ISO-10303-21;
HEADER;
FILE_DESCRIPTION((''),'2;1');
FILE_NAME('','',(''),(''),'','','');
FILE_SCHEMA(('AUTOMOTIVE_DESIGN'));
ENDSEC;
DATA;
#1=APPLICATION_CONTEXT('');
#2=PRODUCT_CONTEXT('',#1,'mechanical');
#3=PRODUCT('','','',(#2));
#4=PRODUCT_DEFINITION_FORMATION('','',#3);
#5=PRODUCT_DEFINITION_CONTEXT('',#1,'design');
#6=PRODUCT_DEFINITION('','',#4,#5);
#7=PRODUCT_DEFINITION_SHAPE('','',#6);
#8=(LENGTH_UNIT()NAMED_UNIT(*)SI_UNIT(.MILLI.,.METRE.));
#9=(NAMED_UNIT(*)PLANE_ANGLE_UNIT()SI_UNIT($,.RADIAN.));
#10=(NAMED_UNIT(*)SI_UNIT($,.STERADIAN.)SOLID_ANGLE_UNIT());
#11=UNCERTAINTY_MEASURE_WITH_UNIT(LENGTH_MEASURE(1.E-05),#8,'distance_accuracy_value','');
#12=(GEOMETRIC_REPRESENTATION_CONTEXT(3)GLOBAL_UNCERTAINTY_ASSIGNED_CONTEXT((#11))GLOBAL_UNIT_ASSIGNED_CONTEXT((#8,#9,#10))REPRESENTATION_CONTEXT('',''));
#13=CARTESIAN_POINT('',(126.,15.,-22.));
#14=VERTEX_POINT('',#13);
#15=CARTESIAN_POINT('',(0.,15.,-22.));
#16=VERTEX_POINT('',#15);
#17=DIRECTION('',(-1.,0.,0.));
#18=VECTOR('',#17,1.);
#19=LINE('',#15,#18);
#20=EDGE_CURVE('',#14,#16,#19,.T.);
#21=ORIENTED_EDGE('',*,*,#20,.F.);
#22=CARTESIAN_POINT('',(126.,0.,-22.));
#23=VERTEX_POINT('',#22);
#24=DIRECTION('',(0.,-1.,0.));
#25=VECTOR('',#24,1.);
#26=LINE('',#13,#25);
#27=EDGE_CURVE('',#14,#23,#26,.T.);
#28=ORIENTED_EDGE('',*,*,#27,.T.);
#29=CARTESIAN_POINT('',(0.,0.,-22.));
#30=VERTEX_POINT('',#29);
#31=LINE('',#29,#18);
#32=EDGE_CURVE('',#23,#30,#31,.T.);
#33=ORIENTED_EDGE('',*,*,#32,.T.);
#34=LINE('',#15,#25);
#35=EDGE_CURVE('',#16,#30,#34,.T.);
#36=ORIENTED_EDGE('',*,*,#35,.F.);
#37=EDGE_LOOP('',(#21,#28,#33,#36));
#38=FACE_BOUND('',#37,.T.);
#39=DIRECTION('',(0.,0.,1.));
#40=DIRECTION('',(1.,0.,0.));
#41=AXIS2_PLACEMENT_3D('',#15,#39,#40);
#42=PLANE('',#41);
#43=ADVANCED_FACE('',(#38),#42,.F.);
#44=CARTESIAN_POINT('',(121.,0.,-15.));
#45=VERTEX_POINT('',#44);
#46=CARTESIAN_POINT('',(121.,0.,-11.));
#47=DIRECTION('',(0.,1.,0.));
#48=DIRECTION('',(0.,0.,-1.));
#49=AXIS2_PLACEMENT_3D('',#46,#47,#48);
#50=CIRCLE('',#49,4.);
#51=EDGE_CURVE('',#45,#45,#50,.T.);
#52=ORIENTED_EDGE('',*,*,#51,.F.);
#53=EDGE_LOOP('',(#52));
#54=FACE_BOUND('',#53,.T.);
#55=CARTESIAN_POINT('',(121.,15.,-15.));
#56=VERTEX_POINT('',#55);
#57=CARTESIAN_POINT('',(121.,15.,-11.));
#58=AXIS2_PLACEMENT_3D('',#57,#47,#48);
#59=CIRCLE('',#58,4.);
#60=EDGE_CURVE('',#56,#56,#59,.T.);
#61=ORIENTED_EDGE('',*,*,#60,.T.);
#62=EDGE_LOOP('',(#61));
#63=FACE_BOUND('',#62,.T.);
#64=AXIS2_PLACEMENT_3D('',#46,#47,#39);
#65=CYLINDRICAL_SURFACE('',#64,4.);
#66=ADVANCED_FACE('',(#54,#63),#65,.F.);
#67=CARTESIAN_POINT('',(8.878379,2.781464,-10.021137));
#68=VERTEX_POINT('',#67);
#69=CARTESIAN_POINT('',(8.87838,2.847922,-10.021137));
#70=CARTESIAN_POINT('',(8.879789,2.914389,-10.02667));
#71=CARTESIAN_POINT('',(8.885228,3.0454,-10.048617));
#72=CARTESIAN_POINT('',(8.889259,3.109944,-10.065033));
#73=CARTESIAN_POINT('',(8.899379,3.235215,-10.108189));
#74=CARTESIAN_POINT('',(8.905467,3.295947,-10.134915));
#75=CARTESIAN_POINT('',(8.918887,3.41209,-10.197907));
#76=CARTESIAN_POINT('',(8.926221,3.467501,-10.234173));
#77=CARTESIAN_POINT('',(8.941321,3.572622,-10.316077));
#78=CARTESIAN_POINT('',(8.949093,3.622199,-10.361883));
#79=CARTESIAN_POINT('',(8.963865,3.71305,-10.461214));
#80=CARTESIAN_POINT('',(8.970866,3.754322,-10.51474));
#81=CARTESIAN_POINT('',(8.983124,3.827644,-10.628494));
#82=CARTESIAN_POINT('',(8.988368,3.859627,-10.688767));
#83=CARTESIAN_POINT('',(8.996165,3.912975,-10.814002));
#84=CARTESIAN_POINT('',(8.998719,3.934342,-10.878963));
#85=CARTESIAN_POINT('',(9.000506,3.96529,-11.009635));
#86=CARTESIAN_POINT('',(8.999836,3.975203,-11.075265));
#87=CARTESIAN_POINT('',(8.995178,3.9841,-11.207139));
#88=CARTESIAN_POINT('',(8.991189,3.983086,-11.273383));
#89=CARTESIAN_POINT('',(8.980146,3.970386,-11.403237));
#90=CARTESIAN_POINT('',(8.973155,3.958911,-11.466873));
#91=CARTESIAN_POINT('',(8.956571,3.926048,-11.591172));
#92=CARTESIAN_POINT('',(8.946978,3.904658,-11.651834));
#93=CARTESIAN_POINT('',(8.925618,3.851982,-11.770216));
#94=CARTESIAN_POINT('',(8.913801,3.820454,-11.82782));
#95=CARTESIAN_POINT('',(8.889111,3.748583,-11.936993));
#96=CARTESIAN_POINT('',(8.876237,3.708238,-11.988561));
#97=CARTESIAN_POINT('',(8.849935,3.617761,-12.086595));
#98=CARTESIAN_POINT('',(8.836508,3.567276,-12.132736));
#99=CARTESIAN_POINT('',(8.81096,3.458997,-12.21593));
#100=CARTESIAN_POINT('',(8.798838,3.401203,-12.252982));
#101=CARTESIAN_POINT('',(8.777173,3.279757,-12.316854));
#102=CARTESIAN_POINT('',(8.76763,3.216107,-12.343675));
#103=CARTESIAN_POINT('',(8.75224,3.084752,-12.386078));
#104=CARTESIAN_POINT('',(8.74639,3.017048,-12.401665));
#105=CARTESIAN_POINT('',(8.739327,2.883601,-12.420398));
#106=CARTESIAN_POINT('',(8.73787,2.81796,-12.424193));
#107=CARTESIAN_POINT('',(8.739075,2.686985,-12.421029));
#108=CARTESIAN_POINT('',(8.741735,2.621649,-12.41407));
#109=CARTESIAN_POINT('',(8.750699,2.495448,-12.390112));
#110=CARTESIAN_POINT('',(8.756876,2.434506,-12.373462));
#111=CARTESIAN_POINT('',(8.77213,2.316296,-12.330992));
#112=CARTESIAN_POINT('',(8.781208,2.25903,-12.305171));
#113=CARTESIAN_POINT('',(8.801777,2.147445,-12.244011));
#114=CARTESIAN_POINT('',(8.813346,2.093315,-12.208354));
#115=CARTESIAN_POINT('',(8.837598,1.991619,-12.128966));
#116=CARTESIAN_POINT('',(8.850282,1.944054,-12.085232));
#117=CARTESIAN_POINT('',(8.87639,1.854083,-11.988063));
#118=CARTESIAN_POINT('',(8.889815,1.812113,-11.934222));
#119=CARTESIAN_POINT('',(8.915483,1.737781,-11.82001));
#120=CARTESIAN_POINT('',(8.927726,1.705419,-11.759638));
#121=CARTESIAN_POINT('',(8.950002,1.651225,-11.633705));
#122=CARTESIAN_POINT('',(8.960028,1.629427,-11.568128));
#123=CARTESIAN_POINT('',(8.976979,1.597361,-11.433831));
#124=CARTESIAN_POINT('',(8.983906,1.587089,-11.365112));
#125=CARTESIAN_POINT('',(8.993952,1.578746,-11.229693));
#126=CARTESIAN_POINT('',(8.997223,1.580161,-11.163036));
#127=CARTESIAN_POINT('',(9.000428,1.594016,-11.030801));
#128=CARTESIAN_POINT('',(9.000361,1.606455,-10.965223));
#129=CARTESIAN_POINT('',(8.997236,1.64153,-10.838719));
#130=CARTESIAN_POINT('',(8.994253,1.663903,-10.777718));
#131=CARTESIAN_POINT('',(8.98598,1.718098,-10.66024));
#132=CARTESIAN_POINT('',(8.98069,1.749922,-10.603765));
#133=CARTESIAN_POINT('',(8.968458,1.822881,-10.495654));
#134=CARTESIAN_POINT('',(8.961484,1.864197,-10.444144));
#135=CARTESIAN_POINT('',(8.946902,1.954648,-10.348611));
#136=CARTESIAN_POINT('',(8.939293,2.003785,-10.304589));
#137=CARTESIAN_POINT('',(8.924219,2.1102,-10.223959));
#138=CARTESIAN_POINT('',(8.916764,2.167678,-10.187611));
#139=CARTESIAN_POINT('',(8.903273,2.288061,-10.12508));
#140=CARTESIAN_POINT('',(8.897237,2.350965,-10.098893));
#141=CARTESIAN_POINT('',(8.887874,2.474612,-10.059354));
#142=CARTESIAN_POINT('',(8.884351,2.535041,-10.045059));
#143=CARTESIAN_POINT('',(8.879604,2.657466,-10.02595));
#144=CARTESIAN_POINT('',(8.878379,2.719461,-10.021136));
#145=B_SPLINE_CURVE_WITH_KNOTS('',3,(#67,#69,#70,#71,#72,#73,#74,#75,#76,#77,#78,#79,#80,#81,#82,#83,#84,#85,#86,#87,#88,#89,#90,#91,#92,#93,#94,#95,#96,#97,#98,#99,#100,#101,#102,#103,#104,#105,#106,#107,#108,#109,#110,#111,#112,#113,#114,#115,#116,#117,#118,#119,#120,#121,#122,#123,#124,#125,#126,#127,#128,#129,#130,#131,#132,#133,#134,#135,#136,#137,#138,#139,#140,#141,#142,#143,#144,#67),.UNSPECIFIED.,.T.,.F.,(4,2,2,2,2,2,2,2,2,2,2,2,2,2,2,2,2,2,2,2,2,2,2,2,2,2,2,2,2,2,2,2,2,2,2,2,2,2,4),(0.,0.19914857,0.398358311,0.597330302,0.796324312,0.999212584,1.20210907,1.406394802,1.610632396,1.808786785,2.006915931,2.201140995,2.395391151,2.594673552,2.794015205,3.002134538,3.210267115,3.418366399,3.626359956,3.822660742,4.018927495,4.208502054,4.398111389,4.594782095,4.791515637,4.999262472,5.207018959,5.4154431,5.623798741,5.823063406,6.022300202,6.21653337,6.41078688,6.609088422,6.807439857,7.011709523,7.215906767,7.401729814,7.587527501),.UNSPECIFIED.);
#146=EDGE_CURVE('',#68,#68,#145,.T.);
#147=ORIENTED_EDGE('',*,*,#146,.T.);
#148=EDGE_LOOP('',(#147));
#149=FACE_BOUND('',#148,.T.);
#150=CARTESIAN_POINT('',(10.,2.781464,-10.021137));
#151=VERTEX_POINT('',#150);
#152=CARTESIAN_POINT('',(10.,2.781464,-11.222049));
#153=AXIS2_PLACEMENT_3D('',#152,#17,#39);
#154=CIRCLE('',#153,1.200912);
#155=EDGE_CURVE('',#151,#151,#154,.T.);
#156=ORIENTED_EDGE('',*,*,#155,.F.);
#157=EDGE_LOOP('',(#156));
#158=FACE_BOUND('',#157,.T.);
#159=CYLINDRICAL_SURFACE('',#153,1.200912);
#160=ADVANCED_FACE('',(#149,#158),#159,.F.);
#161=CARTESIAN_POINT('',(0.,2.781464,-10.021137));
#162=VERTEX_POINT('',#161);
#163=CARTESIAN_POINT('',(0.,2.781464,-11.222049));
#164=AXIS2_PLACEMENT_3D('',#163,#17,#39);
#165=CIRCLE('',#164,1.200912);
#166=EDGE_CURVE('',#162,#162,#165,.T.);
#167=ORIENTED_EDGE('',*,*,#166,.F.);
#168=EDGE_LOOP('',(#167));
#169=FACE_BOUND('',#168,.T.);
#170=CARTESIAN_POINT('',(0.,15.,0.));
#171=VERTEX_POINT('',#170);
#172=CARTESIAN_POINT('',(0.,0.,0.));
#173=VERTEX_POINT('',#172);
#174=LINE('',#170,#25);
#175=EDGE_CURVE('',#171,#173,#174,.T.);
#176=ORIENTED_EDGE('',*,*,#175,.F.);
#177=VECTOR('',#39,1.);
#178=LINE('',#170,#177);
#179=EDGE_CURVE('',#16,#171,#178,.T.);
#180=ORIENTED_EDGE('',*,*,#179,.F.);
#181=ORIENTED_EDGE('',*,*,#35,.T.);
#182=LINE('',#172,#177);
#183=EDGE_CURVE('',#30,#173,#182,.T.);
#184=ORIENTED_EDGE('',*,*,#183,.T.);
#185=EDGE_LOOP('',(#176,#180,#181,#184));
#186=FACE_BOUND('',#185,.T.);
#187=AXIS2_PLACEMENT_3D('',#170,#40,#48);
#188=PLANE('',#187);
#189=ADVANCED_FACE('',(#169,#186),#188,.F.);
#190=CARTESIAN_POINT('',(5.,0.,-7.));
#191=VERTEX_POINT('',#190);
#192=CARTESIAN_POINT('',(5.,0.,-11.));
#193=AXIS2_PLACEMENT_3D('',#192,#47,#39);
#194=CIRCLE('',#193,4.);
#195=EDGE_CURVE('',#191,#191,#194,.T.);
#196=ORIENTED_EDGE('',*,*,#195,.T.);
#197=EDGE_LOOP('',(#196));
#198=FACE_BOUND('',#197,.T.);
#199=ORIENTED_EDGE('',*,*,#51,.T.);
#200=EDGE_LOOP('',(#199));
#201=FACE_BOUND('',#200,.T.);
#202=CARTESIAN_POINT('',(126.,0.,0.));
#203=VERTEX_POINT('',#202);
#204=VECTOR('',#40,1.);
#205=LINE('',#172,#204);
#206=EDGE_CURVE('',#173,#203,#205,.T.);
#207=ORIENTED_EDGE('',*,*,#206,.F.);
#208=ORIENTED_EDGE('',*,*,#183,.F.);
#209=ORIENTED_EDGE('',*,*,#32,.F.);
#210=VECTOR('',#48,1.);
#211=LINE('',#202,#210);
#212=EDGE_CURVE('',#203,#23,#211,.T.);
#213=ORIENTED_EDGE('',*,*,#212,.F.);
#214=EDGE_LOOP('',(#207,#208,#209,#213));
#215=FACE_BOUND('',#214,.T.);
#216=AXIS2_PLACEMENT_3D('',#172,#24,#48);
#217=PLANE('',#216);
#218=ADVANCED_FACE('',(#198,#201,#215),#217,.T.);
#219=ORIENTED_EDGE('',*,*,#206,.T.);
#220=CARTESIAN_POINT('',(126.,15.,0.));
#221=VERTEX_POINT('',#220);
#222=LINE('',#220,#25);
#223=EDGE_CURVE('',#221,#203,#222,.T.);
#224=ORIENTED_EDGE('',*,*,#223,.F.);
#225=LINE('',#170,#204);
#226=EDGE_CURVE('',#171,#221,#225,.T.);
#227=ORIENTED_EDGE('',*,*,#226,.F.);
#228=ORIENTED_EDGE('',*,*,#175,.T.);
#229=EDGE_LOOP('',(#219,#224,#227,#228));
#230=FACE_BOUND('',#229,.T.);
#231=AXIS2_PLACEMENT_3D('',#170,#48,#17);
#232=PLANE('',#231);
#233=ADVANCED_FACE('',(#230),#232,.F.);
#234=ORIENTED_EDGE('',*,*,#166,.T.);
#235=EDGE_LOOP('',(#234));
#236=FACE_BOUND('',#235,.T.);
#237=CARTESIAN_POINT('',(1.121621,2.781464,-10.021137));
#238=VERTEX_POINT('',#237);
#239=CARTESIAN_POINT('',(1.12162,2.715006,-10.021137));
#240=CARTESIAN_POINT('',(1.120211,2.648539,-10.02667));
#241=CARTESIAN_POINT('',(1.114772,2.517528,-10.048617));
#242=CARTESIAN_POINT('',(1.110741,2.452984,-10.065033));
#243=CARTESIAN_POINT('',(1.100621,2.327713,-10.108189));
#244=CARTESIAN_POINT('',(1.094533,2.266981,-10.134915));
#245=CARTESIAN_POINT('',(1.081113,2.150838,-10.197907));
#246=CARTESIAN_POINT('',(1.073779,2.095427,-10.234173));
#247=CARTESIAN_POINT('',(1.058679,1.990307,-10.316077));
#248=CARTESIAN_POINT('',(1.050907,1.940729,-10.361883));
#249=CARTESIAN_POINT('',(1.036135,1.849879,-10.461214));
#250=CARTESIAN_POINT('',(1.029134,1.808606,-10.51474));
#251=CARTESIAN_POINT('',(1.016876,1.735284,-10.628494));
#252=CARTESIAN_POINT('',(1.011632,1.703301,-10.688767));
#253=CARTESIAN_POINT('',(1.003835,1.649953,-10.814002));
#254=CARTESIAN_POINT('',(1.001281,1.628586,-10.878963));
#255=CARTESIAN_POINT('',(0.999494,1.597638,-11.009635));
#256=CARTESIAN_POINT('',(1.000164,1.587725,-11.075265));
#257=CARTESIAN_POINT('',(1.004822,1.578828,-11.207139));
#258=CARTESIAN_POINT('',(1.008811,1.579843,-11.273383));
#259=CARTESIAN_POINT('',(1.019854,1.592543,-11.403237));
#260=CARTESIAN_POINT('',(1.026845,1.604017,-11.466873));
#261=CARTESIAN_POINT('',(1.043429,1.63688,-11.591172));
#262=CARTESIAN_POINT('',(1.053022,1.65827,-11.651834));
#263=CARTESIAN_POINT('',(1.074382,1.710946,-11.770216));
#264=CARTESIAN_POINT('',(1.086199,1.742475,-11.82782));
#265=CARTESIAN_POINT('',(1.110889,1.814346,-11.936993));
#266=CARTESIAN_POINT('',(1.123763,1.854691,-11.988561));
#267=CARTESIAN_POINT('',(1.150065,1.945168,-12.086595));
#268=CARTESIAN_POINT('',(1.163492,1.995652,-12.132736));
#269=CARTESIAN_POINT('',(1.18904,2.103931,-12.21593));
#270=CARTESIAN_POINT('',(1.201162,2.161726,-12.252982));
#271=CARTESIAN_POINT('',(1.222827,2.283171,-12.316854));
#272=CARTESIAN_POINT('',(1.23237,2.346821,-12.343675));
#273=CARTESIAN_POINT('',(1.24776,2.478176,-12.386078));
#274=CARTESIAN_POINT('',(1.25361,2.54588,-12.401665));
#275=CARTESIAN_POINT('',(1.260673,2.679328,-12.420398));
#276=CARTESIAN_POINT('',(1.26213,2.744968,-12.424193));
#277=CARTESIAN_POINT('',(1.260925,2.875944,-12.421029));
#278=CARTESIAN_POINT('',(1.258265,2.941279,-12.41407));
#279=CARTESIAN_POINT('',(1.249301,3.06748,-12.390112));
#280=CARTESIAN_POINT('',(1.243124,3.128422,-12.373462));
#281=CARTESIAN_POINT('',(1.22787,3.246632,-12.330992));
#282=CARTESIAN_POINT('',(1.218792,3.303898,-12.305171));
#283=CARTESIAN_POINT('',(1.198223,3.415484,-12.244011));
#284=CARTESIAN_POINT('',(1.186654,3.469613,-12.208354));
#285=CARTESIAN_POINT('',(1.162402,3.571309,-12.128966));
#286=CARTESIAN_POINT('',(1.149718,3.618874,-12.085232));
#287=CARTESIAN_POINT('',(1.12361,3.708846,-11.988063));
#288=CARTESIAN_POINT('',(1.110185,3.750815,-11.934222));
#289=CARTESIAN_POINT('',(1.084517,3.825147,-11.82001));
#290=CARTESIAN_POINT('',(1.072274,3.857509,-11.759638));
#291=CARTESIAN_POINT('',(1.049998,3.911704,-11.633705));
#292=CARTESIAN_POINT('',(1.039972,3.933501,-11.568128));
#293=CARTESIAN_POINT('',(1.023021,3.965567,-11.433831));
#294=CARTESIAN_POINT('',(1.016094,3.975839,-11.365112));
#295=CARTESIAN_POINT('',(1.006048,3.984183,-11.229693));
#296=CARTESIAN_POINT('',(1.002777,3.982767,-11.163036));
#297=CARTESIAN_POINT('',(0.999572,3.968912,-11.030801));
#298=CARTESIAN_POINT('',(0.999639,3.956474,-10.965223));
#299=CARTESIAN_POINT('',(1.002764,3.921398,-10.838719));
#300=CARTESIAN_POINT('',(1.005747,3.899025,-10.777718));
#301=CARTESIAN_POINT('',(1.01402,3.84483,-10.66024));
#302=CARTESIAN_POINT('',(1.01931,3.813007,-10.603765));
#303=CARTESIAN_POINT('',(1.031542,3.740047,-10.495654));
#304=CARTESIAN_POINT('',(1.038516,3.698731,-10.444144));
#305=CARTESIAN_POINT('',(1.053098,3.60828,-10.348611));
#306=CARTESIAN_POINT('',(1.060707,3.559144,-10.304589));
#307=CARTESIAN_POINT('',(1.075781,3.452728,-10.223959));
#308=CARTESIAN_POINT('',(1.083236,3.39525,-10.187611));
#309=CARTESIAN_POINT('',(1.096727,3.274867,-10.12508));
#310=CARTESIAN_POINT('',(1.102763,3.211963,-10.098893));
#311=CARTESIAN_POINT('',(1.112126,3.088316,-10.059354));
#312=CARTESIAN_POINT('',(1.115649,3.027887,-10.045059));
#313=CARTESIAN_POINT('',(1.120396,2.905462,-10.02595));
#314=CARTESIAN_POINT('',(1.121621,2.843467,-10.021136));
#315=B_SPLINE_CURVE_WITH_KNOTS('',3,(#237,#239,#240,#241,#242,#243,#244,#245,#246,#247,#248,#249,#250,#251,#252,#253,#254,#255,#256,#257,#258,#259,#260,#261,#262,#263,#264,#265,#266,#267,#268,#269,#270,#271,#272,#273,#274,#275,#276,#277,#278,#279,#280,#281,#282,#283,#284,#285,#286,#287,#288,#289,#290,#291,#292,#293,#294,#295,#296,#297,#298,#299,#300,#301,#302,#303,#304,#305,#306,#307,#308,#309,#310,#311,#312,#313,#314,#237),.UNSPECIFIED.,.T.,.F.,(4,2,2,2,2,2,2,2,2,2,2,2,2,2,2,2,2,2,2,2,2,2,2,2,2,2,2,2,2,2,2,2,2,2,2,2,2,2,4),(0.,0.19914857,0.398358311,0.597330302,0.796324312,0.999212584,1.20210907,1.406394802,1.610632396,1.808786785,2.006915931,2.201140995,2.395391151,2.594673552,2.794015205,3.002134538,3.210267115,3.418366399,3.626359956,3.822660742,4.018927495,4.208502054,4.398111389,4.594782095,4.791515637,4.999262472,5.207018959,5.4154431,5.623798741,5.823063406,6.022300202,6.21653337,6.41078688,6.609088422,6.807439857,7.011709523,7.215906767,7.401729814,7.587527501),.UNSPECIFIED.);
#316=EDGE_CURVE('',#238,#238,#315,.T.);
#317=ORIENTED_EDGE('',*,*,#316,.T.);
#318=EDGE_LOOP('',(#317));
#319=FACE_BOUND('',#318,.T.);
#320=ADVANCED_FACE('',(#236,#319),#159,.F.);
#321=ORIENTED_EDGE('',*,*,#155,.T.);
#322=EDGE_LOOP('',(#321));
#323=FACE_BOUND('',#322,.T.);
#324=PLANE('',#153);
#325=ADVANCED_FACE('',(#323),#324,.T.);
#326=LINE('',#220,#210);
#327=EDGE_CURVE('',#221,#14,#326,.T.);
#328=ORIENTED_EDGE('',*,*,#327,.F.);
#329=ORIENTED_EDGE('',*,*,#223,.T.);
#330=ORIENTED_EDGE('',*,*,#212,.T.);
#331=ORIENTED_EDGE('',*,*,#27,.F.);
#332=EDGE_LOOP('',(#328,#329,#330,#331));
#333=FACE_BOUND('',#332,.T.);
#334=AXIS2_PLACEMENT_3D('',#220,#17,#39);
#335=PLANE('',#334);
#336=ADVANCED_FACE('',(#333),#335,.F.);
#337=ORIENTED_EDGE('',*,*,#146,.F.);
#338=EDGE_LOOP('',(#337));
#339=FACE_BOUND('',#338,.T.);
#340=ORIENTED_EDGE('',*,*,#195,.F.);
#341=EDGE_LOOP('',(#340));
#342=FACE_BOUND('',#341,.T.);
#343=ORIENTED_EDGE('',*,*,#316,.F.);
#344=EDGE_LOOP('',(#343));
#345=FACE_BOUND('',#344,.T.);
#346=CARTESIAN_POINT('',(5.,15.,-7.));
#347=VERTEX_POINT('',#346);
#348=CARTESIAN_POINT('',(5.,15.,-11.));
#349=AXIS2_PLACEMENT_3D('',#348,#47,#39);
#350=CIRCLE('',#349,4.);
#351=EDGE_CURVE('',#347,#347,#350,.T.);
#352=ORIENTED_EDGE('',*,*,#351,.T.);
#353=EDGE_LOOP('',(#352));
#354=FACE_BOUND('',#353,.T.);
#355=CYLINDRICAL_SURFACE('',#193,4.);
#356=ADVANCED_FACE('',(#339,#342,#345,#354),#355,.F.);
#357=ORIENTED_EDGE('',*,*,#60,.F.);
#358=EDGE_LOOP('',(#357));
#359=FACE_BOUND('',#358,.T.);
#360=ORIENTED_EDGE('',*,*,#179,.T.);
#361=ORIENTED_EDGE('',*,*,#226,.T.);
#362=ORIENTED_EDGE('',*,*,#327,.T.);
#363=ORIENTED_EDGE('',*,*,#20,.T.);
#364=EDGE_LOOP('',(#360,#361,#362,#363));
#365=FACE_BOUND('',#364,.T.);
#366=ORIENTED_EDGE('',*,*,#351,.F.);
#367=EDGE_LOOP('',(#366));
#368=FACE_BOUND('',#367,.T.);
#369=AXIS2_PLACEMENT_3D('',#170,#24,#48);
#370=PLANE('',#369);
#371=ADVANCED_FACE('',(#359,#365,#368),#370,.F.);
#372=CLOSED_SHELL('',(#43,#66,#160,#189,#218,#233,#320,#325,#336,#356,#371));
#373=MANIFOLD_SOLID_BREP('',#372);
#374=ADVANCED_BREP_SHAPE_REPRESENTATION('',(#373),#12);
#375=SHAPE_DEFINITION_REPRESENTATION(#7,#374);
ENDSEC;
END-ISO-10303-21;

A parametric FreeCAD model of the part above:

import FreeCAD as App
import Part
import Sketcher

V = App.Vector
Q = App.Units.Quantity

doc = App.newDocument("Part")
body = doc.addObject("PartDesign::Body", "Body")

# Sketch on XZ plane
sketch1 = body.newObject("Sketcher::SketchObject", "Sketch")
sketch1.AttachmentSupport = (doc.getObject("XZ_Plane"), [""])
sketch1.MapMode = "FlatFace"
sketch1.addGeometry([
    Part.LineSegment(V(0, -22, 0), V(0, 0, 0)),
    Part.LineSegment(V(0, 0, 0), V(126, 0, 0)),
    Part.LineSegment(V(126, 0, 0), V(126, -22, 0)),
    Part.LineSegment(V(126, -22, 0), V(0, -22, 0)),
], False)
sketch1.addConstraint([
    Sketcher.Constraint("Coincident", 0, 2, 1, 1),
    Sketcher.Constraint("Coincident", 1, 2, 2, 1),
    Sketcher.Constraint("Coincident", 2, 2, 3, 1),
    Sketcher.Constraint("Coincident", 3, 2, 0, 1),
    Sketcher.Constraint("Vertical", 0),
    Sketcher.Constraint("Horizontal", 1),
    Sketcher.Constraint("Vertical", 2),
    Sketcher.Constraint("Horizontal", 3),
    Sketcher.Constraint("Coincident", 0, 2, -1, 1),
    Sketcher.Constraint("DistanceX", 1, 1, 1, 2, Q("126 mm")),
    Sketcher.Constraint("DistanceY", 0, 1, 0, 2, Q("22 mm")),
])
pad1 = body.newObject("PartDesign::Pad", "Pad")
pad1.Profile = sketch1
pad1.Length = 15
pad1.Reversed = True

# Sketch on YZ plane
sketch2 = body.newObject("Sketcher::SketchObject", "Sketch001")
sketch2.AttachmentSupport = (doc.getObject("YZ_Plane"), [""])
sketch2.MapMode = "FlatFace"
sketch2.addGeometry(Part.Circle(V(2.8, -11.2, 0), V(0, 0, 1), 1.2), False)
sketch2.addConstraint([
    Sketcher.Constraint("Diameter", 0, Q("2.401824 mm")),
    Sketcher.Constraint("DistanceY", 0, 3, -1, 1, Q("11.222049 mm")),
    Sketcher.Constraint("DistanceX", -1, 1, 0, 3, Q("2.781464 mm")),
])
pocket1 = body.newObject("PartDesign::Pocket", "Pocket")
pocket1.Profile = sketch2
pocket1.Length = 10
pocket1.Reversed = True

# Sketch on XZ plane
sketch3 = body.newObject("Sketcher::SketchObject", "Sketch002")
sketch3.AttachmentSupport = (doc.getObject("XZ_Plane"), [""])
sketch3.MapMode = "FlatFace"
sketch3.AttachmentOffset = App.Placement(V(0, 0, -15), App.Rotation())
sketch3.addGeometry([
    Part.Circle(V(5, -11, 0), V(0, 0, 1), 4),
    Part.Circle(V(121, -11, 0), V(0, 0, 1), 4),
], False)
sketch3.addConstraint([
    Sketcher.Constraint("Equal", 0, 1),
    Sketcher.Constraint("Horizontal", 0, 3, 1, 3),
    Sketcher.Constraint("Diameter", 0, Q("8 mm")),
    Sketcher.Constraint("DistanceX", -1, 1, 0, 3, Q("5 mm")),
    Sketcher.Constraint("DistanceY", 0, 3, -1, 1, Q("11 mm")),
    Sketcher.Constraint("DistanceX", -1, 1, 1, 3, Q("121 mm")),
])
pocket2 = body.newObject("PartDesign::Pocket", "Pocket001")
pocket2.Profile = sketch3
pocket2.Type = "ThroughAll"
pocket2.Reversed = True

doc.recompute()
